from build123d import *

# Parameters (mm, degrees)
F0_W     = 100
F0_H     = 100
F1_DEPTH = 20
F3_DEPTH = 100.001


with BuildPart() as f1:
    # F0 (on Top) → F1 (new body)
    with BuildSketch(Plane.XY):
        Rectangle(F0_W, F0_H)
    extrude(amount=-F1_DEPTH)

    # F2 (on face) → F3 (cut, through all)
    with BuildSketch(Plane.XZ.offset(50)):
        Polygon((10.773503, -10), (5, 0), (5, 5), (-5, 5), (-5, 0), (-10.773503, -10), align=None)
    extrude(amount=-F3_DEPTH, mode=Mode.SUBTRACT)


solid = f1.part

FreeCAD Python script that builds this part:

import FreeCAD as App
import Part
import Sketcher
Q = App.Units.Quantity

doc = App.newDocument("Part")
params = doc.addObject("Spreadsheet::Sheet", "Params")
for row, (alias, value) in enumerate([
    ("sketch1_width", "100 mm"),
    ("pad1_length", "20 mm"),
    ("sketch2_width", "10 mm"),
    ("sketch2_height", "5 mm"),
], start=1):
    params.set(f"A{row}", alias)
    params.set(f"B{row}", "=" + value)
    params.setAlias(f"B{row}", alias)

body = doc.addObject("PartDesign::Body", "Body")

# Sketch on XY plane
sketch1 = doc.addObject("Sketcher::SketchObject", "Sketch")
body.addObject(sketch1)
sketch1.AttachmentSupport = (doc.XY_Plane, [""])
sketch1.MapMode = "FlatFace"
sketch1.addGeometry([
    Part.LineSegment(App.Vector(-50, 50, 0), App.Vector(-50, -50, 0)),
    Part.LineSegment(App.Vector(-50, -50, 0), App.Vector(50, -50, 0)),
    Part.LineSegment(App.Vector(50, -50, 0), App.Vector(50, 50, 0)),
    Part.LineSegment(App.Vector(50, 50, 0), App.Vector(-50, 50, 0)),
], False)
sketch1.addConstraint([
    Sketcher.Constraint("Coincident", 0, 2, 1, 1),
    Sketcher.Constraint("Coincident", 1, 2, 2, 1),
    Sketcher.Constraint("Coincident", 2, 2, 3, 1),
    Sketcher.Constraint("Coincident", 3, 2, 0, 1),
    Sketcher.Constraint("Vertical", 0),
    Sketcher.Constraint("Horizontal", 1),
    Sketcher.Constraint("Vertical", 2),
    Sketcher.Constraint("Horizontal", 3),
    Sketcher.Constraint("Symmetric", 0, 2, 2, 2, -1, 1),
    Sketcher.Constraint("Equal", 3, 0),
    Sketcher.Constraint("DistanceX", 1, 1, 1, 2, 100.0),
])
sketch1.setExpression("Constraints[10]", "Params.sketch1_width")
pad1 = doc.addObject("PartDesign::Pad", "Pad")
body.addObject(pad1)
pad1.Profile = sketch1
pad1.setExpression("Length", "Params.pad1_length")
pad1.Reversed = True

# Sketch on XZ plane
sketch2 = doc.addObject("Sketcher::SketchObject", "Sketch001")
body.addObject(sketch2)
sketch2.AttachmentSupport = (doc.XZ_Plane, [""])
sketch2.MapMode = "FlatFace"
sketch2.AttachmentOffset = App.Placement(App.Vector(0, 0, 50), App.Rotation())
sketch2.addGeometry([
    Part.LineSegment(App.Vector(11, -10, 0), App.Vector(5, 0, 0)),  # 0
    Part.LineSegment(App.Vector(5, 0, 0), App.Vector(5, 5, 0)),  # 1
    Part.LineSegment(App.Vector(5, 5, 0), App.Vector(-5, 5, 0)),  # 2
    Part.LineSegment(App.Vector(-5, 5, 0), App.Vector(-5, 0, 0)),  # 3
    Part.LineSegment(App.Vector(-5, 0, 0), App.Vector(-11, -10, 0)),  # 4
    Part.LineSegment(App.Vector(-11, -10, 0), App.Vector(11, -10, 0)),  # 5
], False)
sketch2.addConstraint([
    Sketcher.Constraint("Coincident", 0, 2, 1, 1),
    Sketcher.Constraint("Coincident", 1, 2, 2, 1),
    Sketcher.Constraint("Coincident", 2, 2, 3, 1),
    Sketcher.Constraint("Coincident", 3, 2, 4, 1),
    Sketcher.Constraint("Coincident", 4, 2, 5, 1),
    Sketcher.Constraint("Coincident", 5, 2, 0, 1),
    Sketcher.Constraint("Vertical", 1),
    Sketcher.Constraint("Horizontal", 2),
    Sketcher.Constraint("Vertical", 3),
    Sketcher.Constraint("Horizontal", 5),
    Sketcher.Constraint("Symmetric", 0, 2, 3, 2, -1, 1),
    Sketcher.Constraint("PointOnObject", 0, 2, -1),
    Sketcher.Constraint("Equal", 0, 4),
    Sketcher.Constraint("DistanceX", 2, 2, 2, 1, 10.0),
    Sketcher.Constraint("DistanceY", 1, 1, 1, 2, 5.0),
    Sketcher.Constraint("Angle", 0, Q("120.000001 deg")),
    Sketcher.Constraint("DistanceY", 4, 2, -1, 1, 10.0),
])
sketch2.setExpression("Constraints[13]", "Params.sketch2_width")
sketch2.setExpression("Constraints[14]", "Params.sketch2_height")
pocket1 = doc.addObject("PartDesign::Pocket", "Pocket")
body.addObject(pocket1)
pocket1.Profile = sketch2
pocket1.Type = "ThroughAll"

doc.recompute()
